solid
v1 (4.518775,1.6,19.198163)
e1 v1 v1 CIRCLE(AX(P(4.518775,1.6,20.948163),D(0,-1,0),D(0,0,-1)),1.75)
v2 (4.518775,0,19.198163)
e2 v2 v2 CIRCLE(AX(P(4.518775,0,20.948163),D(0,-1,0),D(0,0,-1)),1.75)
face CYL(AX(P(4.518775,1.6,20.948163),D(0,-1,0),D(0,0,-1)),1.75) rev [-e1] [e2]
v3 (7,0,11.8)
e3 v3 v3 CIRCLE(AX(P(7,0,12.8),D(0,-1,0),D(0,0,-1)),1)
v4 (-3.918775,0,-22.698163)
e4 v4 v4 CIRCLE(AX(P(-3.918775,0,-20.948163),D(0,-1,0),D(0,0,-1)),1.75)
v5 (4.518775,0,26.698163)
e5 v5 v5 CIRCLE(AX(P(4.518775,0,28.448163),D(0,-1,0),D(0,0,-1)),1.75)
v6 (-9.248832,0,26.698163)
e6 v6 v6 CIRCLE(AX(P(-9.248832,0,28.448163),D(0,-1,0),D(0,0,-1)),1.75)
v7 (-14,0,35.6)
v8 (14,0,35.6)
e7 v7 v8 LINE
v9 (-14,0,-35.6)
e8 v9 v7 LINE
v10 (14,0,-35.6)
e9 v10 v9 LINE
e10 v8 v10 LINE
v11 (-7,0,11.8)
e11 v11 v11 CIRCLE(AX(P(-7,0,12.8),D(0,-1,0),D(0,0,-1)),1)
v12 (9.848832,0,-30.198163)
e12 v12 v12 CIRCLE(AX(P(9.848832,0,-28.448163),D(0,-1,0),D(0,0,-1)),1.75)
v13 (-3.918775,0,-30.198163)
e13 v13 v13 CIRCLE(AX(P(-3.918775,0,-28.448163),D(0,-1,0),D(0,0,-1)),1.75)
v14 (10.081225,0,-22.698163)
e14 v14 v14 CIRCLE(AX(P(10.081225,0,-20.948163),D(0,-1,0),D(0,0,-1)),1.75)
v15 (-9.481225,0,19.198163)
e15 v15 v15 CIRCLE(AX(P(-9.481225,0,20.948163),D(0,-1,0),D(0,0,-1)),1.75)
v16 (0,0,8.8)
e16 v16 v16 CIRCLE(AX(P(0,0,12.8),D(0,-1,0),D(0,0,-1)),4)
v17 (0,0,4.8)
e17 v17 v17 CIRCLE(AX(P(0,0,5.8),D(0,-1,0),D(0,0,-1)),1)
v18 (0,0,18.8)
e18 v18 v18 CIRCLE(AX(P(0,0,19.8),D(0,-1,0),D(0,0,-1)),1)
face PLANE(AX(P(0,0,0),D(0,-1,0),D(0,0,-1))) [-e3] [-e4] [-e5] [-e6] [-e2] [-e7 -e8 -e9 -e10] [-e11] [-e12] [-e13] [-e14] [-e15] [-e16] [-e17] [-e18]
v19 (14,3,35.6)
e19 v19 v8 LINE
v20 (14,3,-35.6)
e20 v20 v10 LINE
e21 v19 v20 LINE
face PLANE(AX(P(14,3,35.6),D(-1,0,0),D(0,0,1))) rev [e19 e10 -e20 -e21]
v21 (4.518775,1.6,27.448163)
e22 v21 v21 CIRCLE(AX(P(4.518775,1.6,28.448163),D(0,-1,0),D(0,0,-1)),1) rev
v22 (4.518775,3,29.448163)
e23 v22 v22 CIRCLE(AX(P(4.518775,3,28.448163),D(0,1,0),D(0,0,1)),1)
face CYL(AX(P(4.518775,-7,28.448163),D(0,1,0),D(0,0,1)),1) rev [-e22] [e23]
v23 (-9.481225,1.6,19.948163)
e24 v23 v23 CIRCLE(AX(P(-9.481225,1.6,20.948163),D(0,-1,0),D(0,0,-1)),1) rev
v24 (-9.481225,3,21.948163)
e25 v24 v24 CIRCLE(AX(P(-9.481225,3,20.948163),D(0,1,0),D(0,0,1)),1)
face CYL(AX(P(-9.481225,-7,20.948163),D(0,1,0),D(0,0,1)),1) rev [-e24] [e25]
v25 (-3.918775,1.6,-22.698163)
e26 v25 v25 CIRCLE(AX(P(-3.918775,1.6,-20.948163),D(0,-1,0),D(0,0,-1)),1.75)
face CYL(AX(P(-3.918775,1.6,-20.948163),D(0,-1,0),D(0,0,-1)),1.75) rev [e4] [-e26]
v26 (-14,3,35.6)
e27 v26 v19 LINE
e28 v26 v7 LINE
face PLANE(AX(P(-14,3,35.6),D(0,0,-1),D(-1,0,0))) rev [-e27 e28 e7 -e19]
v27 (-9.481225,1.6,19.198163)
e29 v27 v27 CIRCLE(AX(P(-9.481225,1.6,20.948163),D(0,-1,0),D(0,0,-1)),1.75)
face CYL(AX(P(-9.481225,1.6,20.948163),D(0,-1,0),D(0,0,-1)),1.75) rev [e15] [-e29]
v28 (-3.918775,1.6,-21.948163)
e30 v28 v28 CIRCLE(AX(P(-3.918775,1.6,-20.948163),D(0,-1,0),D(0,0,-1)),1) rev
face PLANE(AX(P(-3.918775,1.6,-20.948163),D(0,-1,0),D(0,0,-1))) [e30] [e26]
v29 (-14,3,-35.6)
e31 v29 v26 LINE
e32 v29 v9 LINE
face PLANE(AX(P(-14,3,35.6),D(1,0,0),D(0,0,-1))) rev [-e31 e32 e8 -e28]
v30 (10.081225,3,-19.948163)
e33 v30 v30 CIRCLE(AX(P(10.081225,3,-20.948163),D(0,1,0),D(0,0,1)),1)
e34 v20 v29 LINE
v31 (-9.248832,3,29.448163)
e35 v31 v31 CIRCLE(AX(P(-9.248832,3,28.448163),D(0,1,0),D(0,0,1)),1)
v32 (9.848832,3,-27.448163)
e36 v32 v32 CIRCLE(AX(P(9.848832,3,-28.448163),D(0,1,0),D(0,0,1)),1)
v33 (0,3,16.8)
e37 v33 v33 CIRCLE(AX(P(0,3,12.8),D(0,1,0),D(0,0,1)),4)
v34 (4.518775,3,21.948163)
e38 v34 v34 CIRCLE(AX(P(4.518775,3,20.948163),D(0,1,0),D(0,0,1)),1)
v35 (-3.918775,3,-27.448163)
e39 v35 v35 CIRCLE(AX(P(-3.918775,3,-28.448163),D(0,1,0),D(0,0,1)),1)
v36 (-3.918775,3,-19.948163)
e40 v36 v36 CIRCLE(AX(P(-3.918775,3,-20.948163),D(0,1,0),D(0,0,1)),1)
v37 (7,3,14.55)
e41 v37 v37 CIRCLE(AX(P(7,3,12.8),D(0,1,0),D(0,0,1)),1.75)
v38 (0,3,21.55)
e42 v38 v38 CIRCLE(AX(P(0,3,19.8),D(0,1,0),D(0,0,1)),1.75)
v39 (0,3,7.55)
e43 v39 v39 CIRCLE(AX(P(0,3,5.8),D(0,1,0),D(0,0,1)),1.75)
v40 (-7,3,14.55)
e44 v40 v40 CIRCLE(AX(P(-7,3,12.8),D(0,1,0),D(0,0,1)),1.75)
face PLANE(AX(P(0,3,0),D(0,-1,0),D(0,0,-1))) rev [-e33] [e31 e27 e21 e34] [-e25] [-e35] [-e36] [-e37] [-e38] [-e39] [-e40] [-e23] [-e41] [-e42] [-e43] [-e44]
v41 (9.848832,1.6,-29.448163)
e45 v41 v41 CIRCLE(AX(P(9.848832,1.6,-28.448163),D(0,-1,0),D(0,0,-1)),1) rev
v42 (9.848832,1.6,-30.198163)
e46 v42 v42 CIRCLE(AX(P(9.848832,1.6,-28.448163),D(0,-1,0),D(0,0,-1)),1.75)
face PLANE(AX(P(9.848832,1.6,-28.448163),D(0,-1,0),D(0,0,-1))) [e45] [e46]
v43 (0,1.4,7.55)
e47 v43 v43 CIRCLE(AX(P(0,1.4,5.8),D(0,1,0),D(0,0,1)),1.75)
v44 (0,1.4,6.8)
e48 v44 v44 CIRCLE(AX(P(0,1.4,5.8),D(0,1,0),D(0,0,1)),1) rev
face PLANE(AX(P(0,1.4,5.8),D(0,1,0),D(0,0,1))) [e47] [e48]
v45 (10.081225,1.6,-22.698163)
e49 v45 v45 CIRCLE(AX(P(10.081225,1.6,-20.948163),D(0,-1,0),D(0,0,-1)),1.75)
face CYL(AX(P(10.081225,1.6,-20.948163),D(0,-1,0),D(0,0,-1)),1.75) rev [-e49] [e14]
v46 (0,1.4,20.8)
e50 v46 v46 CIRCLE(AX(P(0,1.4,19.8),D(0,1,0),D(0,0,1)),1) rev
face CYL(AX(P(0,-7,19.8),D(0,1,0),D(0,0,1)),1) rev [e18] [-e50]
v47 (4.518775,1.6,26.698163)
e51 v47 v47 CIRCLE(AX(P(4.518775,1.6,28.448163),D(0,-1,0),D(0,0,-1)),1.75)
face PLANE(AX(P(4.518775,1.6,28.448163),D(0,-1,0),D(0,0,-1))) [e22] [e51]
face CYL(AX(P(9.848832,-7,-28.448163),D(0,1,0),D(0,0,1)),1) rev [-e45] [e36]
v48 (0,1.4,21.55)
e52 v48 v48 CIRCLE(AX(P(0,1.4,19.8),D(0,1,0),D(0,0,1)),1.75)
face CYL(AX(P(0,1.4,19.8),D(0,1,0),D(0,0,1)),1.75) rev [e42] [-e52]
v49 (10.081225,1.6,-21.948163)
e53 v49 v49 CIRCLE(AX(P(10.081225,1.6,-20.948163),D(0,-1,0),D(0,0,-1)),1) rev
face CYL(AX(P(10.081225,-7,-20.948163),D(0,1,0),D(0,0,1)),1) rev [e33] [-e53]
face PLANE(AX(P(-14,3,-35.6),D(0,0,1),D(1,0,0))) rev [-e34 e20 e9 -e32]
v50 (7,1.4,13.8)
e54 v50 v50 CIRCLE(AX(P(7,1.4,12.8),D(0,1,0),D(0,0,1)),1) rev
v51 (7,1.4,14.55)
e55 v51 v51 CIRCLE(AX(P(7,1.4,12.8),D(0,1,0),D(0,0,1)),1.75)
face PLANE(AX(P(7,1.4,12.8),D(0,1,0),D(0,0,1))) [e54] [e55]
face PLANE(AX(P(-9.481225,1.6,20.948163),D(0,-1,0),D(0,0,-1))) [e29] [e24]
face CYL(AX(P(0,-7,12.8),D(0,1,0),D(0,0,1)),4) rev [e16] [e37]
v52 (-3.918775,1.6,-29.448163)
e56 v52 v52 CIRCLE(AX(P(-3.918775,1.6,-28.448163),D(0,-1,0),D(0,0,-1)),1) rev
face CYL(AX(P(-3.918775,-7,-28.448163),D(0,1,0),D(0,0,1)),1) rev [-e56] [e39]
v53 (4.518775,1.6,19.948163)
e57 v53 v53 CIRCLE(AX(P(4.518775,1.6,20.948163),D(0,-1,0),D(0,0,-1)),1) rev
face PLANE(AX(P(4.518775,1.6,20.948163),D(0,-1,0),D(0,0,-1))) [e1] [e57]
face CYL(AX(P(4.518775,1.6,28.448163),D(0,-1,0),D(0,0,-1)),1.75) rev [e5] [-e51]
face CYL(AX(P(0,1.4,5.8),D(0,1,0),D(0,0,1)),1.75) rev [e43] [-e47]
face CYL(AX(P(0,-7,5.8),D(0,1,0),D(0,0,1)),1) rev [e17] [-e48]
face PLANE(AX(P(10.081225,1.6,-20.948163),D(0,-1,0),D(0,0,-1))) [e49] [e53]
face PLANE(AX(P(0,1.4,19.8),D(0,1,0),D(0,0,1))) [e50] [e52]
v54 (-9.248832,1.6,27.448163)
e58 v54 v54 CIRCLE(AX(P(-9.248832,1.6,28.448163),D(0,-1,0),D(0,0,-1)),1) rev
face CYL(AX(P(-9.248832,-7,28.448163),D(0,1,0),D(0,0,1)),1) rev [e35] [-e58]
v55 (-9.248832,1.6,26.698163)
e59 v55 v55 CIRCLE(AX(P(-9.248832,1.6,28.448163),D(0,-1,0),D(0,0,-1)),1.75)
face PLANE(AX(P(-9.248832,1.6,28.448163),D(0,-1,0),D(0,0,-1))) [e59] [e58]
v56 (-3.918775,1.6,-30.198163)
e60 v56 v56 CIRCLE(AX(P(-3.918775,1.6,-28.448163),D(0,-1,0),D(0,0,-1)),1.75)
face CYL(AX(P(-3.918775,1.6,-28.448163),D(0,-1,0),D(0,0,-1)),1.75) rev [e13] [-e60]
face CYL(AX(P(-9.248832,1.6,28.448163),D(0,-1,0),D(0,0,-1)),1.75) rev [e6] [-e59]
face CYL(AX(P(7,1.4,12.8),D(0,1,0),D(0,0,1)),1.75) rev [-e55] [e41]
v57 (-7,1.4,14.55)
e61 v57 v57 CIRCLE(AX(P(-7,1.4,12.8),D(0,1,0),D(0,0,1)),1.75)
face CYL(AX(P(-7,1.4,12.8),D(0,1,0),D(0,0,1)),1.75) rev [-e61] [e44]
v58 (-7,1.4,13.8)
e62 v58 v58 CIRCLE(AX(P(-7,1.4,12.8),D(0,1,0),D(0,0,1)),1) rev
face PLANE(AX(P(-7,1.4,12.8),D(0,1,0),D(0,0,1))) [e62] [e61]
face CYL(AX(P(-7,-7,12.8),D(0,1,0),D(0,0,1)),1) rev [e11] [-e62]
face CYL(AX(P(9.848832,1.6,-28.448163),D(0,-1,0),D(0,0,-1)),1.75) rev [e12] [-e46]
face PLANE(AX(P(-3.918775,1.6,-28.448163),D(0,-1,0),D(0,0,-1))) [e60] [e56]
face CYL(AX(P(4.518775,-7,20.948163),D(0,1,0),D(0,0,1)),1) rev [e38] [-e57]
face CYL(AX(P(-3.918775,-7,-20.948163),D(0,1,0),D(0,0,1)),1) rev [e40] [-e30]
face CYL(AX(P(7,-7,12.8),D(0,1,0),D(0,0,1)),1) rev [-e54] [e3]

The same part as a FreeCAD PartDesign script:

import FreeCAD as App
import Part
import Sketcher

V = App.Vector
Q = App.Units.Quantity

doc = App.newDocument("Part")
body = doc.addObject("PartDesign::Body", "Body")

# Sketch on XZ plane
sketch1 = body.newObject("Sketcher::SketchObject", "Sketch")
sketch1.AttachmentSupport = (doc.getObject("XZ_Plane"), [""])
sketch1.MapMode = "FlatFace"
sketch1.addGeometry(Part.LineSegment(V(-14, -36, 0), V(-14, 36, 0)), False)
sketch1.addGeometry(Part.LineSegment(V(-14, 36, 0), V(14, 36, 0)), False)
sketch1.addGeometry(Part.LineSegment(V(14, 36, 0), V(14, -36, 0)), False)
sketch1.addGeometry(Part.LineSegment(V(14, -36, 0), V(-14, -36, 0)), False)
sketch1.addConstraint(Sketcher.Constraint("Coincident", 0, 2, 1, 1))
sketch1.addConstraint(Sketcher.Constraint("Coincident", 1, 2, 2, 1))
sketch1.addConstraint(Sketcher.Constraint("Coincident", 2, 2, 3, 1))
sketch1.addConstraint(Sketcher.Constraint("Coincident", 3, 2, 0, 1))
sketch1.addConstraint(Sketcher.Constraint("Vertical", 0))
sketch1.addConstraint(Sketcher.Constraint("Horizontal", 1))
sketch1.addConstraint(Sketcher.Constraint("Vertical", 2))
sketch1.addConstraint(Sketcher.Constraint("Horizontal", 3))
sketch1.addConstraint(Sketcher.Constraint("Symmetric", 0, 2, 2, 2, -1, 1))
sketch1.addConstraint(Sketcher.Constraint("DistanceX", 1, 1, 1, 2, Q("28 mm")))
sketch1.addConstraint(Sketcher.Constraint("DistanceY", 0, 1, 0, 2, Q("71.2 mm")))
pad1 = body.newObject("PartDesign::Pad", "Pad")
pad1.Profile = sketch1
pad1.Length = 3
pad1.Reversed = True

# Sketch on XZ plane
sketch2 = body.newObject("Sketcher::SketchObject", "Sketch001")
sketch2.AttachmentSupport = (doc.getObject("XZ_Plane"), [""])
sketch2.MapMode = "FlatFace"
sketch2.AttachmentOffset = App.Placement(V(0, 0, -3), App.Rotation())
sketch2.addGeometry(Part.Circle(V(7, 12.8, 0), V(0, 0, 1), 1), False)
sketch2.addGeometry(Part.Circle(V(0, 19.8, 0), V(0, 0, 1), 1), False)
sketch2.addGeometry(Part.Circle(V(-7, 12.8, 0), V(0, 0, 1), 1), False)
sketch2.addGeometry(Part.Circle(V(0, 5.8, 0), V(0, 0, 1), 1), False)
sketch2.addConstraint(Sketcher.Constraint("Equal", 0, 1))
sketch2.addConstraint(Sketcher.Constraint("Equal", 1, 2))
sketch2.addConstraint(Sketcher.Constraint("Equal", 2, 3))
sketch2.addConstraint(Sketcher.Constraint("Symmetric", 0, 3, 2, 3, -2))
sketch2.addConstraint(Sketcher.Constraint("PointOnObject", 1, 3, -2))
sketch2.addConstraint(Sketcher.Constraint("PointOnObject", 3, 3, -2))
sketch2.addConstraint(Sketcher.Constraint("Diameter", 0, Q("2 mm")))
sketch2.addConstraint(Sketcher.Constraint("DistanceX", -1, 1, 0, 3, Q("7 mm")))
sketch2.addConstraint(Sketcher.Constraint("DistanceY", 0, 3, 1, 3, Q("7 mm")))
sketch2.addConstraint(Sketcher.Constraint("DistanceY", 3, 3, 0, 3, Q("7 mm")))
sketch2.addConstraint(Sketcher.Constraint("DistanceY", -1, 1, 0, 3, Q("12.8 mm")))
pocket1 = body.newObject("PartDesign::Pocket", "Pocket")
pocket1.Profile = sketch2
pocket1.Length = 10
pocket1.Reversed = True

# Sketch on XZ plane
sketch3 = body.newObject("Sketcher::SketchObject", "Sketch002")
sketch3.AttachmentSupport = (doc.getObject("XZ_Plane"), [""])
sketch3.MapMode = "FlatFace"
sketch3.AttachmentOffset = App.Placement(V(0, 0, -3), App.Rotation())
sketch3.addGeometry(Part.Circle(V(0, 12.8, 0), V(0, 0, 1), 4), False)
sketch3.addConstraint(Sketcher.Constraint("PointOnObject", 0, 3, -2))
sketch3.addConstraint(Sketcher.Constraint("Diameter", 0, Q("8 mm")))
sketch3.addConstraint(Sketcher.Constraint("DistanceY", -1, 1, 0, 3, Q("12.8 mm")))
pocket2 = body.newObject("PartDesign::Pocket", "Pocket001")
pocket2.Profile = sketch3
pocket2.Length = 10
pocket2.Reversed = True

# Sketch on XZ plane
sketch4 = body.newObject("Sketcher::SketchObject", "Sketch003")
sketch4.AttachmentSupport = (doc.getObject("XZ_Plane"), [""])
sketch4.MapMode = "FlatFace"
sketch4.AttachmentOffset = App.Placement(V(0, 0, -3), App.Rotation())
sketch4.addGeometry(Part.Circle(V(-9.5, 20.9, 0), V(0, 0, 1), 1), False)
sketch4.addGeometry(Part.Circle(V(-9.2, 28.4, 0), V(0, 0, 1), 1), False)
sketch4.addGeometry(Part.Circle(V(4.5, 28.4, 0), V(0, 0, 1), 1), False)
sketch4.addGeometry(Part.Circle(V(4.5, 20.9, 0), V(0, 0, 1), 1), False)
sketch4.addConstraint(Sketcher.Constraint("Equal", 0, 1))
sketch4.addConstraint(Sketcher.Constraint("Equal", 1, 2))
sketch4.addConstraint(Sketcher.Constraint("Equal", 2, 3))
sketch4.addConstraint(Sketcher.Constraint("Horizontal", 1, 3, 2, 3))
sketch4.addConstraint(Sketcher.Constraint("Horizontal", 0, 3, 3, 3))
sketch4.addConstraint(Sketcher.Constraint("Vertical", 2, 3, 3, 3))
sketch4.addConstraint(Sketcher.Constraint("Diameter", 0, Q("2 mm")))
sketch4.addConstraint(Sketcher.Constraint("DistanceX", 0, 3, 2, 3, Q("14 mm")))
sketch4.addConstraint(Sketcher.Constraint("DistanceY", 0, 3, 1, 3, Q("7.5 mm")))
sketch4.addConstraint(Sketcher.Constraint("DistanceX", 0, 3, -1, 1, Q("9.481225 mm")))
sketch4.addConstraint(Sketcher.Constraint("DistanceY", -1, 1, 0, 3, Q("20.948163 mm")))
sketch4.addConstraint(Sketcher.Constraint("DistanceX", 1, 3, -1, 1, Q("9.248832 mm")))
pocket3 = body.newObject("PartDesign::Pocket", "Pocket002")
pocket3.Profile = sketch4
pocket3.Length = 10
pocket3.Reversed = True

# Sketch on XZ plane
sketch5 = body.newObject("Sketcher::SketchObject", "Sketch004")
sketch5.AttachmentSupport = (doc.getObject("XZ_Plane"), [""])
sketch5.MapMode = "FlatFace"
sketch5.AttachmentOffset = App.Placement(V(0, 0, -3), App.Rotation())
sketch5.addGeometry(Part.Circle(V(-3.9, -28.4, 0), V(0, 0, 1), 1), False)
sketch5.addGeometry(Part.Circle(V(9.8, -28.4, 0), V(0, 0, 1), 1), False)
sketch5.addGeometry(Part.Circle(V(10.1, -20.9, 0), V(0, 0, 1), 1), False)
sketch5.addGeometry(Part.Circle(V(-3.9, -20.9, 0), V(0, 0, 1), 1), False)
sketch5.addConstraint(Sketcher.Constraint("Equal", 0, 1))
sketch5.addConstraint(Sketcher.Constraint("Equal", 1, 2))
sketch5.addConstraint(Sketcher.Constraint("Equal", 2, 3))
sketch5.addConstraint(Sketcher.Constraint("Horizontal", 0, 3, 1, 3))
sketch5.addConstraint(Sketcher.Constraint("Horizontal", 2, 3, 3, 3))
sketch5.addConstraint(Sketcher.Constraint("Vertical", 0, 3, 3, 3))
sketch5.addConstraint(Sketcher.Constraint("Diameter", 0, Q("2 mm")))
sketch5.addConstraint(Sketcher.Constraint("DistanceX", 0, 3, 2, 3, Q("14 mm")))
sketch5.addConstraint(Sketcher.Constraint("DistanceY", 1, 3, 2, 3, Q("7.5 mm")))
sketch5.addConstraint(Sketcher.Constraint("DistanceX", 0, 3, -1, 1, Q("3.918775 mm")))
sketch5.addConstraint(Sketcher.Constraint("DistanceY", 0, 3, -1, 1, Q("28.448163 mm")))
sketch5.addConstraint(Sketcher.Constraint("DistanceX", -1, 1, 1, 3, Q("9.848832 mm")))
pocket4 = body.newObject("PartDesign::Pocket", "Pocket003")
pocket4.Profile = sketch5
pocket4.Length = 10
pocket4.Reversed = True

# Sketch on XZ plane
sketch6 = body.newObject("Sketcher::SketchObject", "Sketch005")
sketch6.AttachmentSupport = (doc.getObject("XZ_Plane"), [""])
sketch6.MapMode = "FlatFace"
sketch6.AttachmentOffset = App.Placement(V(0, 0, -3), App.Rotation())
sketch6.addGeometry(Part.Circle(V(0, 19.8, 0), V(0, 0, 1), 1.8), False)
sketch6.addGeometry(Part.Circle(V(-7, 12.8, 0), V(0, 0, 1), 1.8), False)
sketch6.addGeometry(Part.Circle(V(0, 5.8, 0), V(0, 0, 1), 1.8), False)
sketch6.addGeometry(Part.Circle(V(7, 12.8, 0), V(0, 0, 1), 1.8), False)
sketch6.addConstraint(Sketcher.Constraint("Equal", 0, 1))
sketch6.addConstraint(Sketcher.Constraint("Equal", 1, 2))
sketch6.addConstraint(Sketcher.Constraint("Equal", 2, 3))
sketch6.addConstraint(Sketcher.Constraint("Symmetric", 1, 3, 3, 3, -2))
sketch6.addConstraint(Sketcher.Constraint("PointOnObject", 0, 3, -2))
sketch6.addConstraint(Sketcher.Constraint("PointOnObject", 2, 3, -2))
sketch6.addConstraint(Sketcher.Constraint("Diameter", 0, Q("3.5 mm")))
sketch6.addConstraint(Sketcher.Constraint("DistanceX", 1, 3, -1, 1, Q("7 mm")))
sketch6.addConstraint(Sketcher.Constraint("DistanceY", 1, 3, 0, 3, Q("7 mm")))
sketch6.addConstraint(Sketcher.Constraint("DistanceY", 2, 3, 1, 3, Q("7 mm")))
sketch6.addConstraint(Sketcher.Constraint("DistanceY", -1, 1, 0, 3, Q("19.8 mm")))
pocket5 = body.newObject("PartDesign::Pocket", "Pocket004")
pocket5.Profile = sketch6
pocket5.Length = 1.6
pocket5.Reversed = True

# Sketch on XZ plane
sketch7 = body.newObject("Sketcher::SketchObject", "Sketch006")
sketch7.AttachmentSupport = (doc.getObject("XZ_Plane"), [""])
sketch7.MapMode = "FlatFace"
sketch7.addGeometry(Part.Circle(V(-3.9, -20.9, 0), V(0, 0, 1), 1.8), False)
sketch7.addGeometry(Part.Circle(V(9.8, -28.4, 0), V(0, 0, 1), 1.8), False)
sketch7.addGeometry(Part.Circle(V(10.1, -20.9, 0), V(0, 0, 1), 1.8), False)
sketch7.addGeometry(Part.Circle(V(-9.2, 28.4, 0), V(0, 0, 1), 1.8), False)
sketch7.addGeometry(Part.Circle(V(-9.5, 20.9, 0), V(0, 0, 1), 1.8), False)
sketch7.addGeometry(Part.Circle(V(4.5, 28.4, 0), V(0, 0, 1), 1.8), False)
sketch7.addGeometry(Part.Circle(V(4.5, 20.9, 0), V(0, 0, 1), 1.8), False)
sketch7.addGeometry(Part.Circle(V(-3.9, -28.4, 0), V(0, 0, 1), 1.8), False)
sketch7.addConstraint(Sketcher.Constraint("Equal", 0, 1))
sketch7.addConstraint(Sketcher.Constraint("Equal", 1, 2))
sketch7.addConstraint(Sketcher.Constraint("Equal", 2, 3))
sketch7.addConstraint(Sketcher.Constraint("Equal", 3, 4))
sketch7.addConstraint(Sketcher.Constraint("Equal", 4, 5))
sketch7.addConstraint(Sketcher.Constraint("Equal", 5, 6))
sketch7.addConstraint(Sketcher.Constraint("Equal", 6, 7))
sketch7.addConstraint(Sketcher.Constraint("Horizontal", 0, 3, 2, 3))
sketch7.addConstraint(Sketcher.Constraint("Horizontal", 3, 3, 5, 3))
sketch7.addConstraint(Sketcher.Constraint("Horizontal", 4, 3, 6, 3))
sketch7.addConstraint(Sketcher.Constraint("Horizontal", 1, 3, 7, 3))
sketch7.addConstraint(Sketcher.Constraint("Vertical", 5, 3, 6, 3))
sketch7.addConstraint(Sketcher.Constraint("Vertical", 0, 3, 7, 3))
sketch7.addConstraint(Sketcher.Constraint("Diameter", 0, Q("3.5 mm")))
sketch7.addConstraint(Sketcher.Constraint("DistanceX", 0, 3, 2, 3, Q("14 mm")))
sketch7.addConstraint(Sketcher.Constraint("DistanceX", 4, 3, 5, 3, Q("14 mm")))
sketch7.addConstraint(Sketcher.Constraint("DistanceY", 1, 3, 0, 3, Q("7.5 mm")))
sketch7.addConstraint(Sketcher.Constraint("DistanceY", 4, 3, 3, 3, Q("7.5 mm")))
sketch7.addConstraint(Sketcher.Constraint("DistanceX", 4, 3, 0, 3, Q("5.56245 mm")))
sketch7.addConstraint(Sketcher.Constraint("DistanceX", 0, 3, -1, 1, Q("3.918775 mm")))
sketch7.addConstraint(Sketcher.Constraint("DistanceY", 0, 3, -1, 1, Q("20.948163 mm")))
sketch7.addConstraint(Sketcher.Constraint("DistanceX", -1, 1, 1, 3, Q("9.848832 mm")))
sketch7.addConstraint(Sketcher.Constraint("DistanceX", 3, 3, -1, 1, Q("9.248832 mm")))
sketch7.addConstraint(Sketcher.Constraint("DistanceY", -1, 1, 3, 3, Q("28.448163 mm")))
pocket6 = body.newObject("PartDesign::Pocket", "Pocket005")
pocket6.Profile = sketch7
pocket6.Length = 1.6

doc.recompute()
